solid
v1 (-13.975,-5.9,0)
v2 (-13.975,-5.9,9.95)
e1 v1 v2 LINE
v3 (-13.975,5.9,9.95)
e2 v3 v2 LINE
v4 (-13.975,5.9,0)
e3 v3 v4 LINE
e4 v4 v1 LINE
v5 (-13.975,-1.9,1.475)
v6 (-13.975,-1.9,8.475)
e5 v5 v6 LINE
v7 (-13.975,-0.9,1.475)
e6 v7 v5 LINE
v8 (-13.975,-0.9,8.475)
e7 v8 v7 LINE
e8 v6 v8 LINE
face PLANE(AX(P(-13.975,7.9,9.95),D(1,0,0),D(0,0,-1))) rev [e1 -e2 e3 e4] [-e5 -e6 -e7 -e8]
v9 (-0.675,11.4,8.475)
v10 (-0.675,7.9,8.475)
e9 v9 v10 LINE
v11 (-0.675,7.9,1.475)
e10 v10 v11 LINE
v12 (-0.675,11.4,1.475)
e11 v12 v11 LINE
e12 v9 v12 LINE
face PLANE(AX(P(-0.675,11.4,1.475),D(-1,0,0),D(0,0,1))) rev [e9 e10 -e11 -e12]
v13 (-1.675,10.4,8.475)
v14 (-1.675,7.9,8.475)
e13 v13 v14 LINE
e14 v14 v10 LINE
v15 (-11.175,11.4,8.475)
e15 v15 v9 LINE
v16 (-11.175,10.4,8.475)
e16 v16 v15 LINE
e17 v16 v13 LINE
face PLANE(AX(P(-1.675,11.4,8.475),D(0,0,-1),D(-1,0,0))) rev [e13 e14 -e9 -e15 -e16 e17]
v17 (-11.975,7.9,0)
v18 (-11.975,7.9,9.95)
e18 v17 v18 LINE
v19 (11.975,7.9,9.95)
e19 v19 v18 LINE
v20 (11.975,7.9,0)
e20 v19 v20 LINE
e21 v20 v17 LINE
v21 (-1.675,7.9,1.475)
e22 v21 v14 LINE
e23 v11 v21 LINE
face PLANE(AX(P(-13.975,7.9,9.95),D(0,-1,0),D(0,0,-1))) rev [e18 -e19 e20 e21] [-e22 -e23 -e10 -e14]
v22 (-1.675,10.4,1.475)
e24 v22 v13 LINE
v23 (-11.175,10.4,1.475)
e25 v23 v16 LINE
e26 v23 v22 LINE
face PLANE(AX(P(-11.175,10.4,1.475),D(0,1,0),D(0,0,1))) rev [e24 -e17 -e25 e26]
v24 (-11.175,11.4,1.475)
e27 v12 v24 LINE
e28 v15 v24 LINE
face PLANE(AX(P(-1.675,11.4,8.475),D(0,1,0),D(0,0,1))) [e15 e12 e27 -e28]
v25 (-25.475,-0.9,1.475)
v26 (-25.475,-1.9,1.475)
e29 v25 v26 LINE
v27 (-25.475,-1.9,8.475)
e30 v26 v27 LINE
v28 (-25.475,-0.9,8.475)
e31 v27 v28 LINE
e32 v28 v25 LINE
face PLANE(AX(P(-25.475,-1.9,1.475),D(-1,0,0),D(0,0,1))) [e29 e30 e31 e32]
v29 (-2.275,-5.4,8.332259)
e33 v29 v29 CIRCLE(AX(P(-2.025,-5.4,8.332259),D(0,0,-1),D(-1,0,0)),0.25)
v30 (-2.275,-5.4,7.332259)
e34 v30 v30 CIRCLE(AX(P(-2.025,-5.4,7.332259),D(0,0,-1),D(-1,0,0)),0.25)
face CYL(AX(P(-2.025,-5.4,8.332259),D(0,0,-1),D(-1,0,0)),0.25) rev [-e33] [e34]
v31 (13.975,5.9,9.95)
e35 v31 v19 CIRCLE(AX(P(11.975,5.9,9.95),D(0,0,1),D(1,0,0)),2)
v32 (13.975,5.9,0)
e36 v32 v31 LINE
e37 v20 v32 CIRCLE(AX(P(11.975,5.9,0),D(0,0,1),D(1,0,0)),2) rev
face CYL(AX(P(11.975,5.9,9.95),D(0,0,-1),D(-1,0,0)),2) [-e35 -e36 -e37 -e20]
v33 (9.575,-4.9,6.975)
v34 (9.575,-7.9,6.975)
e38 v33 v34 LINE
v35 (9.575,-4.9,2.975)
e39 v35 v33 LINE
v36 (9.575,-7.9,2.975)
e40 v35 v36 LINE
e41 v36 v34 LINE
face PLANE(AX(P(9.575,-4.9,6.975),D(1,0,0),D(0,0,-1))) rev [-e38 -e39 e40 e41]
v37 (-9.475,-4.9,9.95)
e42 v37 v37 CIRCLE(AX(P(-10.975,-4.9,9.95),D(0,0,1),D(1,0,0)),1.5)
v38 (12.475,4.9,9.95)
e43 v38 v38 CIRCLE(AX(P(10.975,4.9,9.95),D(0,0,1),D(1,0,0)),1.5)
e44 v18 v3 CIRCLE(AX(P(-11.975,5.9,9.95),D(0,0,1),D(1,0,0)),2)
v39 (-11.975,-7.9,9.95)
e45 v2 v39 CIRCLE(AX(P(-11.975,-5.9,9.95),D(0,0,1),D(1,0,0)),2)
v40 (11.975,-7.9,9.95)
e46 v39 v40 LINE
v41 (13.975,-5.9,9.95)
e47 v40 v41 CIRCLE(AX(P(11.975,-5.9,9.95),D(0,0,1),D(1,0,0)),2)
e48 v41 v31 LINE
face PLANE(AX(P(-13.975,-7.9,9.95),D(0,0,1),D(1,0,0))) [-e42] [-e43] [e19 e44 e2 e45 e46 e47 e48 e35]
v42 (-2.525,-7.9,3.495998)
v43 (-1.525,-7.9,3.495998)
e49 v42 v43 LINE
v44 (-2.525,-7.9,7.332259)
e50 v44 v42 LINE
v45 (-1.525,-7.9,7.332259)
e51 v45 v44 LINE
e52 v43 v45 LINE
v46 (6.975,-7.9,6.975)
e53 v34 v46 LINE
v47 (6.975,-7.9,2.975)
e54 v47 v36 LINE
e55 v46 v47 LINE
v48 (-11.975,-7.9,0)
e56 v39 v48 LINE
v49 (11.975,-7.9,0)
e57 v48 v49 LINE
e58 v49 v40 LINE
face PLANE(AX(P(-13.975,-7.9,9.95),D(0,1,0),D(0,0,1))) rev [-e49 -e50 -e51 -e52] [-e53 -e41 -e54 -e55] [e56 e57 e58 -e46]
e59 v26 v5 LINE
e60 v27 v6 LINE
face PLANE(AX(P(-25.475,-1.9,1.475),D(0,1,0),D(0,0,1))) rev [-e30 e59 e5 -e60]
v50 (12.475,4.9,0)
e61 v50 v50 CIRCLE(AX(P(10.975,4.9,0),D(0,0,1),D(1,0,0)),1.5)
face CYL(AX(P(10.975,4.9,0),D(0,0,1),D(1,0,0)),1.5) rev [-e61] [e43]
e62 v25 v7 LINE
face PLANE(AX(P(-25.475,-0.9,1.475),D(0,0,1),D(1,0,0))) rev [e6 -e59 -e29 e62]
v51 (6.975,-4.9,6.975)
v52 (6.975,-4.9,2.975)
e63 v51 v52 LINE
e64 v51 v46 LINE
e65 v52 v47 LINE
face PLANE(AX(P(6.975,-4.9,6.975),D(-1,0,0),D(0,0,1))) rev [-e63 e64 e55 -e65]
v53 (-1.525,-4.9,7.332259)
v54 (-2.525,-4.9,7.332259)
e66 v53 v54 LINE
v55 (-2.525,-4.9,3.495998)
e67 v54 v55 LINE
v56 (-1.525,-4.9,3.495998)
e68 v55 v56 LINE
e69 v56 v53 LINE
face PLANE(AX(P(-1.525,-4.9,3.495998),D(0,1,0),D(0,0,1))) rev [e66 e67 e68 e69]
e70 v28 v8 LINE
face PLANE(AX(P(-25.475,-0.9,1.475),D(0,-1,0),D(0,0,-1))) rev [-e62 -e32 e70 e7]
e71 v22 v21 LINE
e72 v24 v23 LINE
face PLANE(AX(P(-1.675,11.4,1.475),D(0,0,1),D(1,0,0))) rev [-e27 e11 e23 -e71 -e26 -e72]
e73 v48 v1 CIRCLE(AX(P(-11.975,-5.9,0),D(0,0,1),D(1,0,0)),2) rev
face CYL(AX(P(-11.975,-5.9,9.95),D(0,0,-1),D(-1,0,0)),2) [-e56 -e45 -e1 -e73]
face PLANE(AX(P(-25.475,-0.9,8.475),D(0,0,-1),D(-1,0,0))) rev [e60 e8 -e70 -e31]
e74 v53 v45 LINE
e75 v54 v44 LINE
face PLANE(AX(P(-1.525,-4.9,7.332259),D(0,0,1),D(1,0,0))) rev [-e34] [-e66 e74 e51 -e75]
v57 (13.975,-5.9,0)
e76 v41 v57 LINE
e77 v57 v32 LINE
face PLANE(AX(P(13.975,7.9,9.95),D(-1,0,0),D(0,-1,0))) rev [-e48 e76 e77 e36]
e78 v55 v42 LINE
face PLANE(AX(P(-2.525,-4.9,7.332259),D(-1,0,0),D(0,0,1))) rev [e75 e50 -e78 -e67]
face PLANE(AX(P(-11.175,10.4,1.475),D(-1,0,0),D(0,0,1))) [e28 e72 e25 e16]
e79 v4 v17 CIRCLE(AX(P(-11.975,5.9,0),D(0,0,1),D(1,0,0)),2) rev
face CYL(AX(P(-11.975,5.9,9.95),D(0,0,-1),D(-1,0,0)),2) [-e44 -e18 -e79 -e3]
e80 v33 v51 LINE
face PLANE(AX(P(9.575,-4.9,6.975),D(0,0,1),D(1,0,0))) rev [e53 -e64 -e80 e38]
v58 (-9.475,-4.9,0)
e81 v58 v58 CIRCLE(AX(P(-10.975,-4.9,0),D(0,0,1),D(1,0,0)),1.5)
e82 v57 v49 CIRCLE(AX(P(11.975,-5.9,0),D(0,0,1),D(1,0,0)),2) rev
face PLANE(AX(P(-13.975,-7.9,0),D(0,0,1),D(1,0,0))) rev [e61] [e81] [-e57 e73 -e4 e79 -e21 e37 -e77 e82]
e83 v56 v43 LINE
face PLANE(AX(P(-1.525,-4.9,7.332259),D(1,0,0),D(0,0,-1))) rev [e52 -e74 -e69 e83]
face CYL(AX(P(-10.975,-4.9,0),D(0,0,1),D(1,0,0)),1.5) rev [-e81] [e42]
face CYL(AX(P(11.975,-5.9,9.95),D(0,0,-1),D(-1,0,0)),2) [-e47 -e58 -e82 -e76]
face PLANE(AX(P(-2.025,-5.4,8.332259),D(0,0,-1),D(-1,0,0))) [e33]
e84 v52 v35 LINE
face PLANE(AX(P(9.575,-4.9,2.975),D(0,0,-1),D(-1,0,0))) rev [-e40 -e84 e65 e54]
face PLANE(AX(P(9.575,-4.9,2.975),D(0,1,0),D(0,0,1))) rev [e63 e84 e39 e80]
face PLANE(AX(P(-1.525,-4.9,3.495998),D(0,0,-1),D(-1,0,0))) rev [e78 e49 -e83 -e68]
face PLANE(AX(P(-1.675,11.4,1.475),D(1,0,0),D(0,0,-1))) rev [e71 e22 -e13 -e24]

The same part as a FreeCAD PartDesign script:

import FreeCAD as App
import Part
import Sketcher

V = App.Vector
Q = App.Units.Quantity


def edges_at(feature, points):
    """Names of the edges that pass closest to the given points."""
    edges = feature.Shape.Edges
    near = lambda p: min(range(len(edges)), key=lambda i: edges[i].distToShape(Part.Vertex(*p))[0])
    return sorted({f"Edge{near(p) + 1}" for p in points})

doc = App.newDocument("Part")
params = doc.addObject("Spreadsheet::Sheet", "Params")
for row, (alias, value) in enumerate([
    ("sketch1_height", "15.8 mm"),
    ("sketch1_width", "27.95 mm"),
    ("pad1_length", "9.95 mm"),
    ("sketch2_diameter", "3 mm"),
    ("fillet_radius", "2 mm"),
    ("sketch3_width", "1 mm"),
    ("sketch3_height", "7 mm"),
    ("pad2_length", "11.5 mm"),
    ("sketch4_width", "1 mm"),
    ("sketch4_height", "7 mm"),
    ("pad3_length", "3.5 mm"),
    ("sketch5_width", "1 mm"),
    ("sketch5_height", "7 mm"),
    ("pad4_length", "9.5 mm"),
    ("sketch6_height", "4 mm"),
    ("sketch6_width", "2.6 mm"),
    ("pocket2_length", "3 mm"),
    ("sketch7_width", "1 mm"),
    ("pocket3_length", "3 mm"),
    ("sketch8_diameter", "0.5 mm"),
    ("pocket4_length", "1 mm"),
], start=1):
    params.set(f"A{row}", alias)
    params.set(f"B{row}", "=" + value)
    params.setAlias(f"B{row}", alias)

body = doc.addObject("PartDesign::Body", "Body")

# Sketch on XY plane
sketch1 = body.newObject("Sketcher::SketchObject", "Sketch")
sketch1.AttachmentSupport = (doc.getObject("XY_Plane"), [""])
sketch1.MapMode = "FlatFace"
sketch1.addGeometry(Part.LineSegment(V(-14, 8, 0), V(-14, -8, 0)), False)
sketch1.addGeometry(Part.LineSegment(V(-14, -8, 0), V(14, -8, 0)), False)
sketch1.addGeometry(Part.LineSegment(V(14, -8, 0), V(14, 8, 0)), False)
sketch1.addGeometry(Part.LineSegment(V(14, 8, 0), V(-14, 8, 0)), False)
sketch1.addConstraint(Sketcher.Constraint("Coincident", 0, 2, 1, 1))
sketch1.addConstraint(Sketcher.Constraint("Coincident", 1, 2, 2, 1))
sketch1.addConstraint(Sketcher.Constraint("Coincident", 2, 2, 3, 1))
sketch1.addConstraint(Sketcher.Constraint("Coincident", 3, 2, 0, 1))
sketch1.addConstraint(Sketcher.Constraint("Vertical", 0))
sketch1.addConstraint(Sketcher.Constraint("Horizontal", 1))
sketch1.addConstraint(Sketcher.Constraint("Vertical", 2))
sketch1.addConstraint(Sketcher.Constraint("Horizontal", 3))
sketch1.addConstraint(Sketcher.Constraint("Symmetric", 0, 2, 2, 2, -1, 1))
sketch1.addConstraint(Sketcher.Constraint("DistanceY", 0, 2, 0, 1, Q("15.8 mm")))
sketch1.addConstraint(Sketcher.Constraint("DistanceX", 1, 1, 1, 2, Q("27.95 mm")))
sketch1.setExpression("Constraints[9]", "Params.sketch1_height")
sketch1.setExpression("Constraints[10]", "Params.sketch1_width")
pad1 = body.newObject("PartDesign::Pad", "Pad")
pad1.Profile = sketch1
pad1.setExpression("Length", "Params.pad1_length")

# Sketch on XY plane
sketch2 = body.newObject("Sketcher::SketchObject", "Sketch001")
sketch2.AttachmentSupport = (doc.getObject("XY_Plane"), [""])
sketch2.MapMode = "FlatFace"
sketch2.AttachmentOffset = App.Placement(V(0, 0, 9.95), App.Rotation())
sketch2.addGeometry(Part.Circle(V(11, 4.9, 0), V(0, 0, 1), 1.5), False)
sketch2.addGeometry(Part.Circle(V(-11, -4.9, 0), V(0, 0, 1), 1.5), False)
sketch2.addConstraint(Sketcher.Constraint("Equal", 0, 1))
sketch2.addConstraint(Sketcher.Constraint("Symmetric", 0, 3, 1, 3, -1, 1))
sketch2.addConstraint(Sketcher.Constraint("Diameter", 0, Q("3 mm")))
sketch2.addConstraint(Sketcher.Constraint("DistanceY", -1, 1, 0, 3, Q("4.9 mm")))
sketch2.addConstraint(Sketcher.Constraint("DistanceX", 1, 3, 0, 3, Q("21.95 mm")))
sketch2.setExpression("Constraints[2]", "Params.sketch2_diameter")
pocket1 = body.newObject("PartDesign::Pocket", "Pocket")
pocket1.Profile = sketch2
pocket1.Type = "ThroughAll"
doc.recompute()

fillet = body.newObject("PartDesign::Fillet", "Fillet")
fillet.Base = (pocket1, edges_at(pocket1, [
    (-13.975, 7.9, 4.975),
    (13.975, 7.9, 4.975),
    (13.975, -7.9, 4.975),
    (-13.975, -7.9, 4.975),
]))
fillet.setExpression("Radius", "Params.fillet_radius")

# Sketch on YZ plane
sketch3 = body.newObject("Sketcher::SketchObject", "Sketch002")
sketch3.AttachmentSupport = (doc.getObject("YZ_Plane"), [""])
sketch3.MapMode = "FlatFace"
sketch3.AttachmentOffset = App.Placement(V(0, 0, -13.975), App.Rotation())
sketch3.addGeometry(Part.LineSegment(V(-0.9, 1.5, 0), V(-1.9, 1.5, 0)), False)
sketch3.addGeometry(Part.LineSegment(V(-1.9, 1.5, 0), V(-1.9, 8.5, 0)), False)
sketch3.addGeometry(Part.LineSegment(V(-1.9, 8.5, 0), V(-0.9, 8.5, 0)), False)
sketch3.addGeometry(Part.LineSegment(V(-0.9, 8.5, 0), V(-0.9, 1.5, 0)), False)
sketch3.addConstraint(Sketcher.Constraint("Coincident", 0, 2, 1, 1))
sketch3.addConstraint(Sketcher.Constraint("Coincident", 1, 2, 2, 1))
sketch3.addConstraint(Sketcher.Constraint("Coincident", 2, 2, 3, 1))
sketch3.addConstraint(Sketcher.Constraint("Coincident", 3, 2, 0, 1))
sketch3.addConstraint(Sketcher.Constraint("Horizontal", 0))
sketch3.addConstraint(Sketcher.Constraint("Vertical", 1))
sketch3.addConstraint(Sketcher.Constraint("Horizontal", 2))
sketch3.addConstraint(Sketcher.Constraint("Vertical", 3))
sketch3.addConstraint(Sketcher.Constraint("DistanceX", 0, 2, 0, 1, Q("1 mm")))
sketch3.addConstraint(Sketcher.Constraint("DistanceY", 1, 1, 1, 2, Q("7 mm")))
sketch3.addConstraint(Sketcher.Constraint("DistanceX", 0, 2, -1, 1, Q("1.9 mm")))
sketch3.addConstraint(Sketcher.Constraint("DistanceY", -1, 1, 0, 2, Q("1.475 mm")))
sketch3.setExpression("Constraints[8]", "Params.sketch3_width")
sketch3.setExpression("Constraints[9]", "Params.sketch3_height")
pad2 = body.newObject("PartDesign::Pad", "Pad001")
pad2.Profile = sketch3
pad2.setExpression("Length", "Params.pad2_length")
pad2.Reversed = True

# Sketch on XZ plane
sketch4 = body.newObject("Sketcher::SketchObject", "Sketch003")
sketch4.AttachmentSupport = (doc.getObject("XZ_Plane"), [""])
sketch4.MapMode = "FlatFace"
sketch4.AttachmentOffset = App.Placement(V(0, 0, -7.9), App.Rotation())
sketch4.addGeometry(Part.LineSegment(V(-0.7, 8.5, 0), V(-0.7, 1.5, 0)), False)
sketch4.addGeometry(Part.LineSegment(V(-0.7, 1.5, 0), V(-1.7, 1.5, 0)), False)
sketch4.addGeometry(Part.LineSegment(V(-1.7, 1.5, 0), V(-1.7, 8.5, 0)), False)
sketch4.addGeometry(Part.LineSegment(V(-1.7, 8.5, 0), V(-0.7, 8.5, 0)), False)
sketch4.addConstraint(Sketcher.Constraint("Coincident", 0, 2, 1, 1))
sketch4.addConstraint(Sketcher.Constraint("Coincident", 1, 2, 2, 1))
sketch4.addConstraint(Sketcher.Constraint("Coincident", 2, 2, 3, 1))
sketch4.addConstraint(Sketcher.Constraint("Coincident", 3, 2, 0, 1))
sketch4.addConstraint(Sketcher.Constraint("Vertical", 0))
sketch4.addConstraint(Sketcher.Constraint("Horizontal", 1))
sketch4.addConstraint(Sketcher.Constraint("Vertical", 2))
sketch4.addConstraint(Sketcher.Constraint("Horizontal", 3))
sketch4.addConstraint(Sketcher.Constraint("DistanceX", 1, 2, 1, 1, Q("1 mm")))
sketch4.addConstraint(Sketcher.Constraint("DistanceY", 0, 2, 0, 1, Q("7 mm")))
sketch4.addConstraint(Sketcher.Constraint("DistanceX", 0, 2, -1, 1, Q("0.675 mm")))
sketch4.addConstraint(Sketcher.Constraint("DistanceY", -1, 1, 0, 2, Q("1.475 mm")))
sketch4.setExpression("Constraints[8]", "Params.sketch4_width")
sketch4.setExpression("Constraints[9]", "Params.sketch4_height")
pad3 = body.newObject("PartDesign::Pad", "Pad002")
pad3.Profile = sketch4
pad3.setExpression("Length", "Params.pad3_length")
pad3.Reversed = True

# Sketch on YZ plane
sketch5 = body.newObject("Sketcher::SketchObject", "Sketch004")
sketch5.AttachmentSupport = (doc.getObject("YZ_Plane"), [""])
sketch5.MapMode = "FlatFace"
sketch5.AttachmentOffset = App.Placement(V(0, 0, -1.675), App.Rotation())
sketch5.addGeometry(Part.LineSegment(V(11.4, 1.5, 0), V(10.4, 1.5, 0)), False)
sketch5.addGeometry(Part.LineSegment(V(10.4, 1.5, 0), V(10.4, 8.5, 0)), False)
sketch5.addGeometry(Part.LineSegment(V(10.4, 8.5, 0), V(11.4, 8.5, 0)), False)
sketch5.addGeometry(Part.LineSegment(V(11.4, 8.5, 0), V(11.4, 1.5, 0)), False)
sketch5.addConstraint(Sketcher.Constraint("Coincident", 0, 2, 1, 1))
sketch5.addConstraint(Sketcher.Constraint("Coincident", 1, 2, 2, 1))
sketch5.addConstraint(Sketcher.Constraint("Coincident", 2, 2, 3, 1))
sketch5.addConstraint(Sketcher.Constraint("Coincident", 3, 2, 0, 1))
sketch5.addConstraint(Sketcher.Constraint("Horizontal", 0))
sketch5.addConstraint(Sketcher.Constraint("Vertical", 1))
sketch5.addConstraint(Sketcher.Constraint("Horizontal", 2))
sketch5.addConstraint(Sketcher.Constraint("Vertical", 3))
sketch5.addConstraint(Sketcher.Constraint("DistanceX", 0, 2, 0, 1, Q("1 mm")))
sketch5.addConstraint(Sketcher.Constraint("DistanceY", 1, 1, 1, 2, Q("7 mm")))
sketch5.addConstraint(Sketcher.Constraint("DistanceX", -1, 1, 0, 2, Q("10.4 mm")))
sketch5.addConstraint(Sketcher.Constraint("DistanceY", -1, 1, 0, 2, Q("1.475 mm")))
sketch5.setExpression("Constraints[8]", "Params.sketch5_width")
sketch5.setExpression("Constraints[9]", "Params.sketch5_height")
pad4 = body.newObject("PartDesign::Pad", "Pad003")
pad4.Profile = sketch5
pad4.setExpression("Length", "Params.pad4_length")
pad4.Reversed = True

# Sketch on XZ plane
sketch6 = body.newObject("Sketcher::SketchObject", "Sketch005")
sketch6.AttachmentSupport = (doc.getObject("XZ_Plane"), [""])
sketch6.MapMode = "FlatFace"
sketch6.AttachmentOffset = App.Placement(V(0, 0, 7.9), App.Rotation())
sketch6.addGeometry(Part.LineSegment(V(7, 7, 0), V(7, 3, 0)), False)
sketch6.addGeometry(Part.LineSegment(V(7, 3, 0), V(9.6, 3, 0)), False)
sketch6.addGeometry(Part.LineSegment(V(9.6, 3, 0), V(9.6, 7, 0)), False)
sketch6.addGeometry(Part.LineSegment(V(9.6, 7, 0), V(7, 7, 0)), False)
sketch6.addConstraint(Sketcher.Constraint("Coincident", 0, 2, 1, 1))
sketch6.addConstraint(Sketcher.Constraint("Coincident", 1, 2, 2, 1))
sketch6.addConstraint(Sketcher.Constraint("Coincident", 2, 2, 3, 1))
sketch6.addConstraint(Sketcher.Constraint("Coincident", 3, 2, 0, 1))
sketch6.addConstraint(Sketcher.Constraint("Vertical", 0))
sketch6.addConstraint(Sketcher.Constraint("Horizontal", 1))
sketch6.addConstraint(Sketcher.Constraint("Vertical", 2))
sketch6.addConstraint(Sketcher.Constraint("Horizontal", 3))
sketch6.addConstraint(Sketcher.Constraint("DistanceY", 0, 2, 0, 1, Q("4 mm")))
sketch6.addConstraint(Sketcher.Constraint("DistanceX", 1, 1, 1, 2, Q("2.6 mm")))
sketch6.addConstraint(Sketcher.Constraint("DistanceX", -1, 1, 0, 2, Q("6.975 mm")))
sketch6.addConstraint(Sketcher.Constraint("DistanceY", -1, 1, 0, 2, Q("2.975 mm")))
sketch6.setExpression("Constraints[8]", "Params.sketch6_height")
sketch6.setExpression("Constraints[9]", "Params.sketch6_width")
pocket2 = body.newObject("PartDesign::Pocket", "Pocket001")
pocket2.Profile = sketch6
pocket2.setExpression("Length", "Params.pocket2_length")

# Sketch on XZ plane
sketch7 = body.newObject("Sketcher::SketchObject", "Sketch006")
sketch7.AttachmentSupport = (doc.getObject("XZ_Plane"), [""])
sketch7.MapMode = "FlatFace"
sketch7.AttachmentOffset = App.Placement(V(0, 0, 7.9), App.Rotation())
sketch7.addGeometry(Part.LineSegment(V(-2.5, 7.3, 0), V(-2.5, 3.5, 0)), False)
sketch7.addGeometry(Part.LineSegment(V(-2.5, 3.5, 0), V(-1.5, 3.5, 0)), False)
sketch7.addGeometry(Part.LineSegment(V(-1.5, 3.5, 0), V(-1.5, 7.3, 0)), False)
sketch7.addGeometry(Part.LineSegment(V(-1.5, 7.3, 0), V(-2.5, 7.3, 0)), False)
sketch7.addConstraint(Sketcher.Constraint("Coincident", 0, 2, 1, 1))
sketch7.addConstraint(Sketcher.Constraint("Coincident", 1, 2, 2, 1))
sketch7.addConstraint(Sketcher.Constraint("Coincident", 2, 2, 3, 1))
sketch7.addConstraint(Sketcher.Constraint("Coincident", 3, 2, 0, 1))
sketch7.addConstraint(Sketcher.Constraint("Vertical", 0))
sketch7.addConstraint(Sketcher.Constraint("Horizontal", 1))
sketch7.addConstraint(Sketcher.Constraint("Vertical", 2))
sketch7.addConstraint(Sketcher.Constraint("Horizontal", 3))
sketch7.addConstraint(Sketcher.Constraint("DistanceX", 1, 1, 1, 2, Q("1 mm")))
sketch7.addConstraint(Sketcher.Constraint("DistanceX", 0, 2, -1, 1, Q("2.525 mm")))
sketch7.addConstraint(Sketcher.Constraint("DistanceY", -1, 1, 0, 2, Q("3.495998 mm")))
sketch7.addConstraint(Sketcher.Constraint("DistanceY", 0, 2, 0, 1, Q("3.83626 mm")))
sketch7.setExpression("Constraints[8]", "Params.sketch7_width")
pocket3 = body.newObject("PartDesign::Pocket", "Pocket002")
pocket3.Profile = sketch7
pocket3.setExpression("Length", "Params.pocket3_length")

# Sketch on XY plane
sketch8 = body.newObject("Sketcher::SketchObject", "Sketch007")
sketch8.AttachmentSupport = (doc.getObject("XY_Plane"), [""])
sketch8.MapMode = "FlatFace"
sketch8.AttachmentOffset = App.Placement(V(0, 0, 7.332259), App.Rotation())
sketch8.addGeometry(Part.Circle(V(-2.02, -5.4, 0), V(0, 0, 1), 0.25), False)
sketch8.addConstraint(Sketcher.Constraint("Diameter", 0, Q("0.5 mm")))
sketch8.addConstraint(Sketcher.Constraint("DistanceY", 0, 3, -1, 1, Q("5.4 mm")))
sketch8.addConstraint(Sketcher.Constraint("DistanceX", 0, 3, -1, 1, Q("2.025 mm")))
sketch8.setExpression("Constraints[0]", "Params.sketch8_diameter")
pocket4 = body.newObject("PartDesign::Pocket", "Pocket003")
pocket4.Profile = sketch8
pocket4.setExpression("Length", "Params.pocket4_length")
pocket4.Reversed = True

doc.recompute()
